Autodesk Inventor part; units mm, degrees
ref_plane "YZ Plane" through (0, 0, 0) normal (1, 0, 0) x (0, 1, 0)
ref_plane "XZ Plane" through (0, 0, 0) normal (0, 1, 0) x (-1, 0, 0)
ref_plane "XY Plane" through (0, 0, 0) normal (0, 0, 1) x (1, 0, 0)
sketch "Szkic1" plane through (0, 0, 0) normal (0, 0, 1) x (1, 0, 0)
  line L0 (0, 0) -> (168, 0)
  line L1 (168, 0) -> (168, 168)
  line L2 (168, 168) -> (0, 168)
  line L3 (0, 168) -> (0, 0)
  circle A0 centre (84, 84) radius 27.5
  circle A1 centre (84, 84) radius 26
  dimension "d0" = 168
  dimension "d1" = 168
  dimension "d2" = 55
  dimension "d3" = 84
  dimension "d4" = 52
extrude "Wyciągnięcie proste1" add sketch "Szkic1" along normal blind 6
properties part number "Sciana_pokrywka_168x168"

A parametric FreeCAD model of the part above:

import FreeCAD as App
import Part
import Sketcher
from FreeCAD import Vector
Q = App.Units.Quantity

doc = App.newDocument("Part")
body = doc.addObject("PartDesign::Body", "Body")
body.AllowCompound = True

# Sketch on XY plane
sketch1 = doc.addObject("Sketcher::SketchObject", "Sketch")
body.addObject(sketch1)
sketch1.AttachmentSupport = (doc.XY_Plane, [""])
sketch1.MapMode = "FlatFace"
sketch1.addGeometry(Part.LineSegment(Vector(0, 168, 0), Vector(0, 0, 0)), False)
sketch1.addGeometry(Part.LineSegment(Vector(0, 0, 0), Vector(168, 0, 0)), False)
sketch1.addGeometry(Part.LineSegment(Vector(168, 0, 0), Vector(168, 168, 0)), False)
sketch1.addGeometry(Part.LineSegment(Vector(168, 168, 0), Vector(0, 168, 0)), False)
sketch1.addGeometry(Part.Circle(Vector(84, 84, 0), Vector(0, 0, 1), 28), False)
sketch1.addGeometry(Part.Circle(Vector(84, 84, 0), Vector(0, 0, 1), 26), False)
sketch1.addConstraint(Sketcher.Constraint("Coincident", 0, 2, 1, 1))
sketch1.addConstraint(Sketcher.Constraint("Coincident", 1, 2, 2, 1))
sketch1.addConstraint(Sketcher.Constraint("Coincident", 2, 2, 3, 1))
sketch1.addConstraint(Sketcher.Constraint("Coincident", 3, 2, 0, 1))
sketch1.addConstraint(Sketcher.Constraint("Vertical", 0))
sketch1.addConstraint(Sketcher.Constraint("Horizontal", 1))
sketch1.addConstraint(Sketcher.Constraint("Vertical", 2))
sketch1.addConstraint(Sketcher.Constraint("Horizontal", 3))
sketch1.addConstraint(Sketcher.Constraint("Coincident", 0, 2, -1, 1))
sketch1.addConstraint(Sketcher.Constraint("Coincident", 5, 3, 4, 3))
sketch1.addConstraint(Sketcher.Constraint("Equal", 3, 0))
sketch1.addConstraint(Sketcher.Constraint("Diameter", 4, Q("55 mm")))
sketch1.addConstraint(Sketcher.Constraint("Diameter", 5, Q("52 mm")))
sketch1.addConstraint(Sketcher.Constraint("DistanceX", 1, 1, 1, 2, Q("168 mm")))
sketch1.addConstraint(Sketcher.Constraint("DistanceX", -1, 1, 4, 3, Q("84 mm")))
sketch1.addConstraint(Sketcher.Constraint("DistanceY", -1, 1, 4, 3, Q("84 mm")))
pad1 = doc.addObject("PartDesign::Pad", "Pad")
body.addObject(pad1)
pad1.Profile = sketch1
pad1.Length = 6

doc.recompute()
